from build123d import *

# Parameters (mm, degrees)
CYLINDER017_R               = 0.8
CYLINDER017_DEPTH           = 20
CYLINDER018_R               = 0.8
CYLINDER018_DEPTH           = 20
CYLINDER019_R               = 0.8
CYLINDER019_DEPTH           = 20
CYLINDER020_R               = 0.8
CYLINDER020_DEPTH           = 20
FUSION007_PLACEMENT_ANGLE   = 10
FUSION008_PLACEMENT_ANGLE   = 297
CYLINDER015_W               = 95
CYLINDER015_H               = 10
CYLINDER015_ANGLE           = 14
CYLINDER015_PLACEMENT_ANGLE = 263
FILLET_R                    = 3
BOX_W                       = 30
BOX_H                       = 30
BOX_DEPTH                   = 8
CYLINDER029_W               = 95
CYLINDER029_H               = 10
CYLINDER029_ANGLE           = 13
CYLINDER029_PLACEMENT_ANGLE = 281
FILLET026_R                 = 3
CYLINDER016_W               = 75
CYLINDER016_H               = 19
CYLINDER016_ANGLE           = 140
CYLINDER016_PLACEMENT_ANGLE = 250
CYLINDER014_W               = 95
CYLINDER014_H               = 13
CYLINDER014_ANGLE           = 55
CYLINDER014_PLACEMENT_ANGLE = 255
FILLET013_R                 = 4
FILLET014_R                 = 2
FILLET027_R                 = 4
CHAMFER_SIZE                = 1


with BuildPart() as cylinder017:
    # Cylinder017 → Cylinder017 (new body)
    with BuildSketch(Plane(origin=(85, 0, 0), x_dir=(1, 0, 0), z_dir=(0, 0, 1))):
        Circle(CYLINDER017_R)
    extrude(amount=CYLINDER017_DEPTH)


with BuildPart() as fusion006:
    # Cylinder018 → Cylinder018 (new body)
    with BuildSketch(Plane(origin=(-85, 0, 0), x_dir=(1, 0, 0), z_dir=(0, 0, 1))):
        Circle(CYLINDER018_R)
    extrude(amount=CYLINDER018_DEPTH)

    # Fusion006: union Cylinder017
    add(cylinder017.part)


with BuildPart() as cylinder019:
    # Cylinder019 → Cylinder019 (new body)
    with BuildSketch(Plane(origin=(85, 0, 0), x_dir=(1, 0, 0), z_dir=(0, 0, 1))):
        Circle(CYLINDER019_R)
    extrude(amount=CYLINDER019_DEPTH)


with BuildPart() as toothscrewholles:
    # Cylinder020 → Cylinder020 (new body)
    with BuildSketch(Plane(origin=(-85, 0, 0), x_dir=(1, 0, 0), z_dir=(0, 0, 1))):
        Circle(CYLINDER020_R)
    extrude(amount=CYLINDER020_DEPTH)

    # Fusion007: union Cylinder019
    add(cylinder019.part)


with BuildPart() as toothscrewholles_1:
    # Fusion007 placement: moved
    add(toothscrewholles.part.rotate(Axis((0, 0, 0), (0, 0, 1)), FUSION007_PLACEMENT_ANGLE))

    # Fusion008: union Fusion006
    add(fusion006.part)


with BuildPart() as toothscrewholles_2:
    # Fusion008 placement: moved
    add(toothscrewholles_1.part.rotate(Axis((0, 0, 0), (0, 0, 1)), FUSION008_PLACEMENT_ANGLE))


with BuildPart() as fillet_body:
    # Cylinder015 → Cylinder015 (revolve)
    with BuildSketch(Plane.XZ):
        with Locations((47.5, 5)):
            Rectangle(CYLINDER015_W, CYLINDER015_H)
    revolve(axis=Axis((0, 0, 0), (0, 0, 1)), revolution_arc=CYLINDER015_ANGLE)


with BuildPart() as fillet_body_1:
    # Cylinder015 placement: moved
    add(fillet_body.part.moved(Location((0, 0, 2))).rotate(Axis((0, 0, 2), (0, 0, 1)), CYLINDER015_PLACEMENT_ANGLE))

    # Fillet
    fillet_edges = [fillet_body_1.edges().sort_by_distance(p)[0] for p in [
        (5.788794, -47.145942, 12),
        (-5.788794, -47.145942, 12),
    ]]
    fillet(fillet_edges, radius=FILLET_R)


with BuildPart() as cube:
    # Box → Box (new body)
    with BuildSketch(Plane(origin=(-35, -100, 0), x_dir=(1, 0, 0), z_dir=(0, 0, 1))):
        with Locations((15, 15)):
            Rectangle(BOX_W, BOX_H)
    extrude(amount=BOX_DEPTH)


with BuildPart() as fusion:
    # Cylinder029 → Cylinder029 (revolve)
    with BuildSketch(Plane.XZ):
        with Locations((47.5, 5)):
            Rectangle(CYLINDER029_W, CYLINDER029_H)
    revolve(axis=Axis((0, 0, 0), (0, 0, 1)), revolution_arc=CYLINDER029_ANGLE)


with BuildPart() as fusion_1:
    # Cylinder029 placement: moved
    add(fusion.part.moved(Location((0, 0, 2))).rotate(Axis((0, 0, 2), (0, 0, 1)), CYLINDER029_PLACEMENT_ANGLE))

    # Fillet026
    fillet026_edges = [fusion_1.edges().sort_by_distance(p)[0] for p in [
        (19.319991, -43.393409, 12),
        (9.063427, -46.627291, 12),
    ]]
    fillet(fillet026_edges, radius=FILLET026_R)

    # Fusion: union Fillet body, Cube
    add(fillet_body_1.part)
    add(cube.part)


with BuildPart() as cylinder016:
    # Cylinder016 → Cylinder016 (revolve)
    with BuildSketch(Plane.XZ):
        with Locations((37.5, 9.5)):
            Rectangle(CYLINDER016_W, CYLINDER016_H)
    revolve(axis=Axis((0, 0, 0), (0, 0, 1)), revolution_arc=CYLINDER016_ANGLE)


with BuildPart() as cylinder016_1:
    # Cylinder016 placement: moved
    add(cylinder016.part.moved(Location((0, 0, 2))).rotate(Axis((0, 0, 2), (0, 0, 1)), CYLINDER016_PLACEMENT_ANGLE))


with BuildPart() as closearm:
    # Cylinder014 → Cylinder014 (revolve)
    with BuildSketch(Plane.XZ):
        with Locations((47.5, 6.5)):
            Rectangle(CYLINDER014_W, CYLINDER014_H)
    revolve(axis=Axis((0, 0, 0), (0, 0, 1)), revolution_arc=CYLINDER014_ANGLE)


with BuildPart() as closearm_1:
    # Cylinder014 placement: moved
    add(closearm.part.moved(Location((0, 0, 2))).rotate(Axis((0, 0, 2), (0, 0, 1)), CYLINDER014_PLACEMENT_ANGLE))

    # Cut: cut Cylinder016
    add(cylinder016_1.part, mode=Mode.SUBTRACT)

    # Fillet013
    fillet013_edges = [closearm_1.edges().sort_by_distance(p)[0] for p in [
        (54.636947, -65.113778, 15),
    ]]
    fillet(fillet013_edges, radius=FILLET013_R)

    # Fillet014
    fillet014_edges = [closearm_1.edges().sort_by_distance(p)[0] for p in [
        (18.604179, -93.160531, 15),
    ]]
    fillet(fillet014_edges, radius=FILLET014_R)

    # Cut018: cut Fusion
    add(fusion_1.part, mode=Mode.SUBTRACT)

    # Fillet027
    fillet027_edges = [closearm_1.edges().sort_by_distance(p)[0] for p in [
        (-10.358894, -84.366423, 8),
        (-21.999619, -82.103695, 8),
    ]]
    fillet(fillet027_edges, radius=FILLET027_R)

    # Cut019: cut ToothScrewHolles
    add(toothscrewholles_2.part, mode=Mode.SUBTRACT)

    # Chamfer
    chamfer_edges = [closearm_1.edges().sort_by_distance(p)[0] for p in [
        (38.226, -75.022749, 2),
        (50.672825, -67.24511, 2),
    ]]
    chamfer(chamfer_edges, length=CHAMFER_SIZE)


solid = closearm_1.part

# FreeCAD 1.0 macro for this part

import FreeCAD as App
import Part
import Sketcher


def edges_at(feature, points):
    """Names of the edges that pass closest to the given points."""
    edges = feature.Shape.Edges
    near = lambda p: min(range(len(edges)), key=lambda i: edges[i].distToShape(Part.Vertex(*p))[0])
    return sorted({f"Edge{near(p) + 1}" for p in points})

doc = App.newDocument("Part")
body = doc.addObject("PartDesign::Body", "Body")

sketch1 = body.newObject("Sketcher::SketchObject", "Sketch")
sketch1.AttachmentSupport = (doc.getObject("XY_Plane"), [""])
sketch1.MapMode = "FlatFace"
sketch1.addGeometry(Part.Circle(App.Vector(85, 0, 0), App.Vector(0, 0, 1), 0.8), False)
sketch1.addConstraint(Sketcher.Constraint("PointOnObject", 0, 3, -1))
sketch1.addConstraint(Sketcher.Constraint("Diameter", 0, 1.6))
sketch1.addConstraint(Sketcher.Constraint("DistanceX", -1, 1, 0, 3, 85.0))
pad1 = body.newObject("PartDesign::Pad", "Pad")
pad1.Profile = sketch1
pad1.Length = 20
body2 = doc.addObject("PartDesign::Body", "Body001")
body2.AllowCompound = True

sketch2 = body2.newObject("Sketcher::SketchObject", "Sketch001")
sketch2.AttachmentSupport = (doc.getObject("XY_Plane001"), [""])
sketch2.MapMode = "FlatFace"
sketch2.addGeometry(Part.Circle(App.Vector(-85, 0, 0), App.Vector(0, 0, 1), 0.8), False)
sketch2.addConstraint(Sketcher.Constraint("PointOnObject", 0, 3, -1))
sketch2.addConstraint(Sketcher.Constraint("Diameter", 0, 1.6))
sketch2.addConstraint(Sketcher.Constraint("DistanceX", 0, 3, -1, 1, 85.0))
pad2 = body2.newObject("PartDesign::Pad", "Pad001")
pad2.Profile = sketch2
pad2.Length = 20
doc.recompute()

boolean = body2.newObject("PartDesign::Boolean", "Boolean")
boolean.Type = "Fuse"
boolean.addObjects([body])
body3 = doc.addObject("PartDesign::Body", "Body002")

sketch3 = body3.newObject("Sketcher::SketchObject", "Sketch002")
sketch3.AttachmentSupport = (doc.getObject("XY_Plane002"), [""])
sketch3.MapMode = "FlatFace"
sketch3.addGeometry(Part.Circle(App.Vector(85, 0, 0), App.Vector(0, 0, 1), 0.8), False)
sketch3.addConstraint(Sketcher.Constraint("PointOnObject", 0, 3, -1))
sketch3.addConstraint(Sketcher.Constraint("Diameter", 0, 1.6))
sketch3.addConstraint(Sketcher.Constraint("DistanceX", -1, 1, 0, 3, 85.0))
pad3 = body3.newObject("PartDesign::Pad", "Pad002")
pad3.Profile = sketch3
pad3.Length = 20
body4 = doc.addObject("PartDesign::Body", "Body003")
body4.AllowCompound = True

sketch4 = body4.newObject("Sketcher::SketchObject", "Sketch003")
sketch4.AttachmentSupport = (doc.getObject("XY_Plane003"), [""])
sketch4.MapMode = "FlatFace"
sketch4.addGeometry(Part.Circle(App.Vector(-85, 0, 0), App.Vector(0, 0, 1), 0.8), False)
sketch4.addConstraint(Sketcher.Constraint("PointOnObject", 0, 3, -1))
sketch4.addConstraint(Sketcher.Constraint("Diameter", 0, 1.6))
sketch4.addConstraint(Sketcher.Constraint("DistanceX", 0, 3, -1, 1, 85.0))
pad4 = body4.newObject("PartDesign::Pad", "Pad003")
pad4.Profile = sketch4
pad4.Length = 20
doc.recompute()

boolean2 = body4.newObject("PartDesign::Boolean", "Boolean001")
boolean2.Type = "Fuse"
boolean2.addObjects([body3])
body5 = doc.addObject("PartDesign::Body", "Body004")
body5.AllowCompound = True
doc.recompute()

body4.Placement = App.Placement(App.Vector(0, 0, 0), App.Rotation(App.Vector(0, 0, 1), 10))
boolean3 = body5.newObject("PartDesign::Boolean", "Boolean002")
boolean3.Type = "Fuse"
boolean3.addObjects([body4])
doc.recompute()

boolean4 = body5.newObject("PartDesign::Boolean", "Boolean003")
boolean4.Type = "Fuse"
boolean4.addObjects([body2])
body6 = doc.addObject("PartDesign::Body", "Body005")
body6.AllowCompound = True
doc.recompute()

body5.Placement = App.Placement(App.Vector(0, 0, 0), App.Rotation(App.Vector(0, 0, 1), 297))
boolean5 = body6.newObject("PartDesign::Boolean", "Boolean004")
boolean5.Type = "Fuse"
boolean5.addObjects([body5])
body7 = doc.addObject("PartDesign::Body", "Body006")

sketch5 = body7.newObject("Sketcher::SketchObject", "Sketch004")
sketch5.AttachmentSupport = (doc.getObject("XZ_Plane006"), [""])
sketch5.MapMode = "FlatFace"
sketch5.addGeometry(Part.LineSegment(App.Vector(0, 10, 0), App.Vector(0, 0, 0)), False)
sketch5.addGeometry(Part.LineSegment(App.Vector(0, 0, 0), App.Vector(95, 0, 0)), False)
sketch5.addGeometry(Part.LineSegment(App.Vector(95, 0, 0), App.Vector(95, 10, 0)), False)
sketch5.addGeometry(Part.LineSegment(App.Vector(95, 10, 0), App.Vector(0, 10, 0)), False)
sketch5.addConstraint(Sketcher.Constraint("Coincident", 0, 2, 1, 1))
sketch5.addConstraint(Sketcher.Constraint("Coincident", 1, 2, 2, 1))
sketch5.addConstraint(Sketcher.Constraint("Coincident", 2, 2, 3, 1))
sketch5.addConstraint(Sketcher.Constraint("Coincident", 3, 2, 0, 1))
sketch5.addConstraint(Sketcher.Constraint("Vertical", 0))
sketch5.addConstraint(Sketcher.Constraint("Horizontal", 1))
sketch5.addConstraint(Sketcher.Constraint("Vertical", 2))
sketch5.addConstraint(Sketcher.Constraint("Horizontal", 3))
sketch5.addConstraint(Sketcher.Constraint("Coincident", 0, 2, -1, 1))
sketch5.addConstraint(Sketcher.Constraint("DistanceX", 1, 1, 1, 2, 95.0))
sketch5.addConstraint(Sketcher.Constraint("DistanceY", 0, 2, 0, 1, 10.0))
revolution = body7.newObject("PartDesign::Revolution", "Revolution")
revolution.Profile = sketch5
revolution.ReferenceAxis = (sketch5, ["V_Axis"])
revolution.Angle = 14
body8 = doc.addObject("PartDesign::Body", "Body007")
doc.recompute()

body7.Placement = App.Placement(App.Vector(0, 0, 2), App.Rotation(App.Vector(0, 0, 1), 263))
boolean6 = body8.newObject("PartDesign::Boolean", "Boolean005")
boolean6.Type = "Fuse"
boolean6.addObjects([body7])
doc.recompute()

fillet = body8.newObject("PartDesign::Fillet", "Fillet")
fillet.Base = (boolean6, edges_at(boolean6, [(5.789, -47.146, 12), (-5.789, -47.146, 12)]))
fillet.Radius = 3
body9 = doc.addObject("PartDesign::Body", "Body008")

sketch6 = body9.newObject("Sketcher::SketchObject", "Sketch005")
sketch6.AttachmentSupport = (doc.getObject("XY_Plane008"), [""])
sketch6.MapMode = "FlatFace"
sketch6.addGeometry(Part.LineSegment(App.Vector(-35, -70, 0), App.Vector(-35, -100, 0)), False)
sketch6.addGeometry(Part.LineSegment(App.Vector(-35, -100, 0), App.Vector(-5, -100, 0)), False)
sketch6.addGeometry(Part.LineSegment(App.Vector(-5, -100, 0), App.Vector(-5, -70, 0)), False)
sketch6.addGeometry(Part.LineSegment(App.Vector(-5, -70, 0), App.Vector(-35, -70, 0)), False)
sketch6.addConstraint(Sketcher.Constraint("Coincident", 0, 2, 1, 1))
sketch6.addConstraint(Sketcher.Constraint("Coincident", 1, 2, 2, 1))
sketch6.addConstraint(Sketcher.Constraint("Coincident", 2, 2, 3, 1))
sketch6.addConstraint(Sketcher.Constraint("Coincident", 3, 2, 0, 1))
sketch6.addConstraint(Sketcher.Constraint("Vertical", 0))
sketch6.addConstraint(Sketcher.Constraint("Horizontal", 1))
sketch6.addConstraint(Sketcher.Constraint("Vertical", 2))
sketch6.addConstraint(Sketcher.Constraint("Horizontal", 3))
sketch6.addConstraint(Sketcher.Constraint("Equal", 3, 0))
sketch6.addConstraint(Sketcher.Constraint("DistanceX", 1, 1, 1, 2, 30.0))
sketch6.addConstraint(Sketcher.Constraint("DistanceX", 0, 2, -1, 1, 35.0))
sketch6.addConstraint(Sketcher.Constraint("DistanceY", 0, 2, -1, 1, 100.0))
pad5 = body9.newObject("PartDesign::Pad", "Pad004")
pad5.Profile = sketch6
pad5.Length = 8
body10 = doc.addObject("PartDesign::Body", "Body009")

sketch7 = body10.newObject("Sketcher::SketchObject", "Sketch006")
sketch7.AttachmentSupport = (doc.getObject("XZ_Plane009"), [""])
sketch7.MapMode = "FlatFace"
sketch7.addGeometry(Part.LineSegment(App.Vector(0, 10, 0), App.Vector(0, 0, 0)), False)
sketch7.addGeometry(Part.LineSegment(App.Vector(0, 0, 0), App.Vector(95, 0, 0)), False)
sketch7.addGeometry(Part.LineSegment(App.Vector(95, 0, 0), App.Vector(95, 10, 0)), False)
sketch7.addGeometry(Part.LineSegment(App.Vector(95, 10, 0), App.Vector(0, 10, 0)), False)
sketch7.addConstraint(Sketcher.Constraint("Coincident", 0, 2, 1, 1))
sketch7.addConstraint(Sketcher.Constraint("Coincident", 1, 2, 2, 1))
sketch7.addConstraint(Sketcher.Constraint("Coincident", 2, 2, 3, 1))
sketch7.addConstraint(Sketcher.Constraint("Coincident", 3, 2, 0, 1))
sketch7.addConstraint(Sketcher.Constraint("Vertical", 0))
sketch7.addConstraint(Sketcher.Constraint("Horizontal", 1))
sketch7.addConstraint(Sketcher.Constraint("Vertical", 2))
sketch7.addConstraint(Sketcher.Constraint("Horizontal", 3))
sketch7.addConstraint(Sketcher.Constraint("Coincident", 0, 2, -1, 1))
sketch7.addConstraint(Sketcher.Constraint("DistanceX", 1, 1, 1, 2, 95.0))
sketch7.addConstraint(Sketcher.Constraint("DistanceY", 0, 2, 0, 1, 10.0))
revolution2 = body10.newObject("PartDesign::Revolution", "Revolution001")
revolution2.Profile = sketch7
revolution2.ReferenceAxis = (sketch7, ["V_Axis"])
revolution2.Angle = 13
body11 = doc.addObject("PartDesign::Body", "Body010")
body11.AllowCompound = True
doc.recompute()

body10.Placement = App.Placement(App.Vector(0, 0, 2), App.Rotation(App.Vector(0, 0, 1), 281))
boolean7 = body11.newObject("PartDesign::Boolean", "Boolean006")
boolean7.Type = "Fuse"
boolean7.addObjects([body10])
doc.recompute()

fillet2 = body11.newObject("PartDesign::Fillet", "Fillet001")
fillet2.Base = (boolean7, edges_at(boolean7, [(19.32, -43.393, 12), (9.063, -46.627, 12)]))
fillet2.Radius = 3
doc.recompute()

boolean8 = body11.newObject("PartDesign::Boolean", "Boolean007")
boolean8.Type = "Fuse"
boolean8.addObjects([body8])
doc.recompute()

boolean9 = body11.newObject("PartDesign::Boolean", "Boolean008")
boolean9.Type = "Fuse"
boolean9.addObjects([body9])
body12 = doc.addObject("PartDesign::Body", "Body011")

sketch8 = body12.newObject("Sketcher::SketchObject", "Sketch007")
sketch8.AttachmentSupport = (doc.getObject("XZ_Plane011"), [""])
sketch8.MapMode = "FlatFace"
sketch8.addGeometry(Part.LineSegment(App.Vector(0, 19, 0), App.Vector(0, 0, 0)), False)
sketch8.addGeometry(Part.LineSegment(App.Vector(0, 0, 0), App.Vector(75, 0, 0)), False)
sketch8.addGeometry(Part.LineSegment(App.Vector(75, 0, 0), App.Vector(75, 19, 0)), False)
sketch8.addGeometry(Part.LineSegment(App.Vector(75, 19, 0), App.Vector(0, 19, 0)), False)
sketch8.addConstraint(Sketcher.Constraint("Coincident", 0, 2, 1, 1))
sketch8.addConstraint(Sketcher.Constraint("Coincident", 1, 2, 2, 1))
sketch8.addConstraint(Sketcher.Constraint("Coincident", 2, 2, 3, 1))
sketch8.addConstraint(Sketcher.Constraint("Coincident", 3, 2, 0, 1))
sketch8.addConstraint(Sketcher.Constraint("Vertical", 0))
sketch8.addConstraint(Sketcher.Constraint("Horizontal", 1))
sketch8.addConstraint(Sketcher.Constraint("Vertical", 2))
sketch8.addConstraint(Sketcher.Constraint("Horizontal", 3))
sketch8.addConstraint(Sketcher.Constraint("Coincident", 0, 2, -1, 1))
sketch8.addConstraint(Sketcher.Constraint("DistanceX", 1, 1, 1, 2, 75.0))
sketch8.addConstraint(Sketcher.Constraint("DistanceY", 0, 2, 0, 1, 19.0))
revolution3 = body12.newObject("PartDesign::Revolution", "Revolution002")
revolution3.Profile = sketch8
revolution3.ReferenceAxis = (sketch8, ["V_Axis"])
revolution3.Angle = 140
body13 = doc.addObject("PartDesign::Body", "Body012")
doc.recompute()

body12.Placement = App.Placement(App.Vector(0, 0, 2), App.Rotation(App.Vector(0, 0, 1), 250))
boolean10 = body13.newObject("PartDesign::Boolean", "Boolean009")
boolean10.Type = "Fuse"
boolean10.addObjects([body12])
body14 = doc.addObject("PartDesign::Body", "Body013")

sketch9 = body14.newObject("Sketcher::SketchObject", "Sketch008")
sketch9.AttachmentSupport = (doc.getObject("XZ_Plane013"), [""])
sketch9.MapMode = "FlatFace"
sketch9.addGeometry(Part.LineSegment(App.Vector(0, 13, 0), App.Vector(0, 0, 0)), False)
sketch9.addGeometry(Part.LineSegment(App.Vector(0, 0, 0), App.Vector(95, 0, 0)), False)
sketch9.addGeometry(Part.LineSegment(App.Vector(95, 0, 0), App.Vector(95, 13, 0)), False)
sketch9.addGeometry(Part.LineSegment(App.Vector(95, 13, 0), App.Vector(0, 13, 0)), False)
sketch9.addConstraint(Sketcher.Constraint("Coincident", 0, 2, 1, 1))
sketch9.addConstraint(Sketcher.Constraint("Coincident", 1, 2, 2, 1))
sketch9.addConstraint(Sketcher.Constraint("Coincident", 2, 2, 3, 1))
sketch9.addConstraint(Sketcher.Constraint("Coincident", 3, 2, 0, 1))
sketch9.addConstraint(Sketcher.Constraint("Vertical", 0))
sketch9.addConstraint(Sketcher.Constraint("Horizontal", 1))
sketch9.addConstraint(Sketcher.Constraint("Vertical", 2))
sketch9.addConstraint(Sketcher.Constraint("Horizontal", 3))
sketch9.addConstraint(Sketcher.Constraint("Coincident", 0, 2, -1, 1))
sketch9.addConstraint(Sketcher.Constraint("DistanceX", 1, 1, 1, 2, 95.0))
sketch9.addConstraint(Sketcher.Constraint("DistanceY", 0, 2, 0, 1, 13.0))
revolution4 = body14.newObject("PartDesign::Revolution", "Revolution003")
revolution4.Profile = sketch9
revolution4.ReferenceAxis = (sketch9, ["V_Axis"])
revolution4.Angle = 55
body15 = doc.addObject("PartDesign::Body", "Body014")
doc.recompute()

body14.Placement = App.Placement(App.Vector(0, 0, 2), App.Rotation(App.Vector(0, 0, 1), 255))
boolean11 = body15.newObject("PartDesign::Boolean", "Boolean010")
boolean11.Type = "Fuse"
boolean11.addObjects([body14])
doc.recompute()

boolean12 = body15.newObject("PartDesign::Boolean", "Boolean011")
boolean12.Type = "Cut"
boolean12.addObjects([body13])
doc.recompute()

fillet3 = body15.newObject("PartDesign::Fillet", "Fillet002")
fillet3.Base = (boolean12, edges_at(boolean12, [(54.637, -65.114, 15)]))
fillet3.Radius = 4
doc.recompute()

fillet4 = body15.newObject("PartDesign::Fillet", "Fillet003")
fillet4.Base = (fillet3, edges_at(fillet3, [(18.604, -93.161, 15)]))
fillet4.Radius = 2
doc.recompute()

boolean13 = body15.newObject("PartDesign::Boolean", "Boolean012")
boolean13.Type = "Cut"
boolean13.addObjects([body11])
doc.recompute()

fillet5 = body15.newObject("PartDesign::Fillet", "Fillet004")
fillet5.Base = (boolean13, edges_at(boolean13, [(-10.359, -84.366, 8), (-22, -82.104, 8)]))
fillet5.Radius = 4
doc.recompute()

boolean14 = body15.newObject("PartDesign::Boolean", "Boolean013")
boolean14.Type = "Cut"
boolean14.addObjects([body6])
doc.recompute()

chamfer = body15.newObject("PartDesign::Chamfer", "Chamfer")
chamfer.Base = (boolean14, edges_at(boolean14, [(38.226, -75.023, 2), (50.673, -67.245, 2)]))
chamfer.Size = 1

doc.recompute()
